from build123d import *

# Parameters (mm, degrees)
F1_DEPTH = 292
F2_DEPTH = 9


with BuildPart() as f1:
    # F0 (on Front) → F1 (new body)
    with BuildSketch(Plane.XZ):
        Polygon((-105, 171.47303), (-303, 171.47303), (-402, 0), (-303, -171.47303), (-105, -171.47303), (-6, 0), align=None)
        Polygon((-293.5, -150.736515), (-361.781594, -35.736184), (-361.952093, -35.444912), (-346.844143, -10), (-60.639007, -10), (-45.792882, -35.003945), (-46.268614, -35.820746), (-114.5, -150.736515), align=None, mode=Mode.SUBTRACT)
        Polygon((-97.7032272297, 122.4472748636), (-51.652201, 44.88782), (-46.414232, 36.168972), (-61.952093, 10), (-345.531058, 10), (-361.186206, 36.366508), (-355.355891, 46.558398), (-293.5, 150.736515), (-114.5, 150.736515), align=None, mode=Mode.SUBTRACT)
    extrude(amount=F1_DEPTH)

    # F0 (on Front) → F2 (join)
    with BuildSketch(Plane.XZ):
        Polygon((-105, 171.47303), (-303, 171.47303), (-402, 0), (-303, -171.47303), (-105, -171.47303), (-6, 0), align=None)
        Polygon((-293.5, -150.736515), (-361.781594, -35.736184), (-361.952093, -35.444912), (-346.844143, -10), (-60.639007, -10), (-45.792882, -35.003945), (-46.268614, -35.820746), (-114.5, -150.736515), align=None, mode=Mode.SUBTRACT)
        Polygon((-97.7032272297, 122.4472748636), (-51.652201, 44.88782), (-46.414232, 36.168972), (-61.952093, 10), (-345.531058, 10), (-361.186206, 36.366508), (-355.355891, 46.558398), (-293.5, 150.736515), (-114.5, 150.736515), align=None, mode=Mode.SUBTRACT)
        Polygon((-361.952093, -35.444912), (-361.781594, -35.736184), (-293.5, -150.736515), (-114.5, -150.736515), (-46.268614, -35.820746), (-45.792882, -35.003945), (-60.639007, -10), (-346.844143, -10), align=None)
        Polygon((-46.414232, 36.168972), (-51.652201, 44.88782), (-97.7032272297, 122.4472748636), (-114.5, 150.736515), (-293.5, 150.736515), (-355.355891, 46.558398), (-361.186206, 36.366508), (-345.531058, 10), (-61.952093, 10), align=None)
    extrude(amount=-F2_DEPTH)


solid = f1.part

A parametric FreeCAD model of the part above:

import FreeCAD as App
import Part
import Sketcher
from FreeCAD import Vector
Q = App.Units.Quantity

doc = App.newDocument("Part")
body = doc.addObject("PartDesign::Body", "Body")

# Sketch on XZ plane
sketch1 = body.newObject("Sketcher::SketchObject", "Sketch")
sketch1.AttachmentSupport = (doc.getObject("XZ_Plane"), [""])
sketch1.MapMode = "FlatFace"
sketch1.addGeometry([
    Part.LineSegment(Vector(-105, 171.47303, 0), Vector(-303, 171.47303, 0)),  # 0
    Part.LineSegment(Vector(-303, 171.47303, 0), Vector(-402, 0, 0)),  # 1
    Part.LineSegment(Vector(-402, 0, 0), Vector(-303, -171.47303, 0)),  # 2
    Part.LineSegment(Vector(-303, -171.47303, 0), Vector(-105, -171.47303, 0)),  # 3
    Part.LineSegment(Vector(-105, -171.47303, 0), Vector(-6, 0, 0)),  # 4
    Part.LineSegment(Vector(-6, 0, 0), Vector(-105, 171.47303, 0)),  # 5
    Part.LineSegment(Vector(-114.5, -150.736515, 0), Vector(-293.5, -150.736515, 0)),  # 6
    Part.LineSegment(Vector(-293.5, -150.736515, 0), Vector(-361.781594, -35.736184, 0)),  # 7
    Part.LineSegment(Vector(-361.781594, -35.736184, 0), Vector(-361.952093, -35.444912, 0)),  # 8
    Part.LineSegment(Vector(-361.952093, -35.444912, 0), Vector(-346.844143, -10, 0)),  # 9
    Part.LineSegment(Vector(-346.844143, -10, 0), Vector(-60.639007, -10, 0)),  # 10
    Part.LineSegment(Vector(-60.639007, -10, 0), Vector(-45.792882, -35.003945, 0)),  # 11
    Part.LineSegment(Vector(-45.792882, -35.003945, 0), Vector(-46.268614, -35.820746, 0)),  # 12
    Part.LineSegment(Vector(-46.268614, -35.820746, 0), Vector(-114.5, -150.736515, 0)),  # 13
    Part.LineSegment(Vector(-114.5, 150.736515, 0), Vector(-97.703227, 122.447275, 0)),  # 14
    Part.LineSegment(Vector(-97.703227, 122.447275, 0), Vector(-51.652201, 44.88782, 0)),  # 15
    Part.LineSegment(Vector(-51.652201, 44.88782, 0), Vector(-46.414232, 36.168972, 0)),  # 16
    Part.LineSegment(Vector(-46.414232, 36.168972, 0), Vector(-61.952093, 10, 0)),  # 17
    Part.LineSegment(Vector(-61.952093, 10, 0), Vector(-345.531058, 10, 0)),  # 18
    Part.LineSegment(Vector(-345.531058, 10, 0), Vector(-361.186206, 36.366508, 0)),  # 19
    Part.LineSegment(Vector(-361.186206, 36.366508, 0), Vector(-355.355891, 46.558398, 0)),  # 20
    Part.LineSegment(Vector(-355.355891, 46.558398, 0), Vector(-293.5, 150.736515, 0)),  # 21
    Part.LineSegment(Vector(-293.5, 150.736515, 0), Vector(-114.5, 150.736515, 0)),  # 22
], False)
sketch1.addConstraint([
    Sketcher.Constraint("Coincident", 0, 2, 1, 1),
    Sketcher.Constraint("Coincident", 1, 2, 2, 1),
    Sketcher.Constraint("Coincident", 2, 2, 3, 1),
    Sketcher.Constraint("Coincident", 3, 2, 4, 1),
    Sketcher.Constraint("Coincident", 4, 2, 5, 1),
    Sketcher.Constraint("Coincident", 5, 2, 0, 1),
    Sketcher.Constraint("Coincident", 6, 2, 7, 1),
    Sketcher.Constraint("Coincident", 7, 2, 8, 1),
    Sketcher.Constraint("Coincident", 8, 2, 9, 1),
    Sketcher.Constraint("Coincident", 9, 2, 10, 1),
    Sketcher.Constraint("Coincident", 10, 2, 11, 1),
    Sketcher.Constraint("Coincident", 11, 2, 12, 1),
    Sketcher.Constraint("Coincident", 12, 2, 13, 1),
    Sketcher.Constraint("Coincident", 13, 2, 6, 1),
    Sketcher.Constraint("Coincident", 14, 2, 15, 1),
    Sketcher.Constraint("Coincident", 15, 2, 16, 1),
    Sketcher.Constraint("Coincident", 16, 2, 17, 1),
    Sketcher.Constraint("Coincident", 17, 2, 18, 1),
    Sketcher.Constraint("Coincident", 18, 2, 19, 1),
    Sketcher.Constraint("Coincident", 19, 2, 20, 1),
    Sketcher.Constraint("Coincident", 20, 2, 21, 1),
    Sketcher.Constraint("Coincident", 21, 2, 22, 1),
    Sketcher.Constraint("Coincident", 22, 2, 14, 1),
    Sketcher.Constraint("Horizontal", 0),
    Sketcher.Constraint("Horizontal", 3),
    Sketcher.Constraint("Horizontal", 6),
    Sketcher.Constraint("Horizontal", 10),
    Sketcher.Constraint("Horizontal", 18),
    Sketcher.Constraint("Horizontal", 22),
    Sketcher.Constraint("Symmetric", 0, 2, 2, 2, -1),
    Sketcher.Constraint("Symmetric", 6, 2, 21, 2, -1),
    Sketcher.Constraint("PointOnObject", 1, 2, -1),
    Sketcher.Constraint("PointOnObject", 4, 2, -1),
    Sketcher.Constraint("Parallel", 1, 4),
    Sketcher.Constraint("Parallel", 2, 5),
    Sketcher.Constraint("Parallel", 7, 11),
    Sketcher.Constraint("Parallel", 9, 13),
    Sketcher.Constraint("Parallel", 11, 14),
    Sketcher.Constraint("Parallel", 14, 15),
    Sketcher.Constraint("Parallel", 13, 17),
    Sketcher.Constraint("Parallel", 15, 19),
    Sketcher.Constraint("Parallel", 17, 21),
    Sketcher.Constraint("Vertical", 13, 2, 22, 2),
    Sketcher.Constraint("DistanceX", 0, 2, 0, 1, 198.0),
    Sketcher.Constraint("DistanceX", 6, 2, 6, 1, 179.0),
    Sketcher.Constraint("Angle", 1, Q("-120 deg")),
    Sketcher.Constraint("Distance", 1, 198.0),
    Sketcher.Constraint("DistanceX", 0, 2, -1, 1, 303.0),
    Sketcher.Constraint("DistanceY", 9, 2, -1, 1, 10.0),
    Sketcher.Constraint("DistanceY", -1, 1, 17, 2, 10.0),
    Sketcher.Constraint("DistanceX", 6, 2, -1, 1, 293.5),
    Sketcher.Constraint("Distance", 15, 90.200699),
    Sketcher.Constraint("DistanceX", 15, 2, -1, 1, 51.652201),
    Sketcher.Constraint("DistanceX", 8, 2, 7, 2, 0.170499),
    Sketcher.Constraint("DistanceY", 12, 2, 11, 2, 0.816801),
    Sketcher.Constraint("Distance", 7, 133.74398),
    Sketcher.Constraint("Distance", 14, 32.900041),
    Sketcher.Constraint("DistanceX", 10, 1, 10, 2, 286.205136),
    Sketcher.Constraint("DistanceX", 18, 2, 18, 1, 283.578965),
    Sketcher.Constraint("DistanceY", -1, 1, 15, 2, 44.88782),
    Sketcher.Constraint("DistanceX", 16, 2, -1, 1, 46.414232),
    Sketcher.Constraint("DistanceY", -1, 1, 16, 2, 36.168972),
    Sketcher.Constraint("DistanceY", -1, 1, 19, 2, 36.366508),
    Sketcher.Constraint("DistanceX", 20, 2, -1, 1, 355.355891),
    Sketcher.Constraint("DistanceY", 7, 2, 8, 2, 0.291272),
    Sketcher.Constraint("DistanceX", 8, 2, 9, 2, 15.10795),
    Sketcher.Constraint("DistanceX", 6, 2, 11, 2, 247.707118),
])
pad1 = body.newObject("PartDesign::Pad", "Pad")
pad1.Profile = sketch1
pad1.Length = 292

# Sketch on XZ plane
sketch2 = body.newObject("Sketcher::SketchObject", "Sketch001")
sketch2.AttachmentSupport = (doc.getObject("XZ_Plane"), [""])
sketch2.MapMode = "FlatFace"
sketch2.addGeometry([
    Part.LineSegment(Vector(-105, 171.47303, 0), Vector(-303, 171.47303, 0)),  # 0
    Part.LineSegment(Vector(-303, 171.47303, 0), Vector(-402, 0, 0)),  # 1
    Part.LineSegment(Vector(-402, 0, 0), Vector(-303, -171.47303, 0)),  # 2
    Part.LineSegment(Vector(-303, -171.47303, 0), Vector(-105, -171.47303, 0)),  # 3
    Part.LineSegment(Vector(-105, -171.47303, 0), Vector(-6, 0, 0)),  # 4
    Part.LineSegment(Vector(-6, 0, 0), Vector(-105, 171.47303, 0)),  # 5
], False)
sketch2.addConstraint([
    Sketcher.Constraint("Coincident", 0, 2, 1, 1),
    Sketcher.Constraint("Coincident", 1, 2, 2, 1),
    Sketcher.Constraint("Coincident", 2, 2, 3, 1),
    Sketcher.Constraint("Coincident", 3, 2, 4, 1),
    Sketcher.Constraint("Coincident", 4, 2, 5, 1),
    Sketcher.Constraint("Coincident", 5, 2, 0, 1),
    Sketcher.Constraint("Horizontal", 0),
    Sketcher.Constraint("Horizontal", 3),
    Sketcher.Constraint("Symmetric", 0, 2, 2, 2, -1),
    Sketcher.Constraint("PointOnObject", 1, 2, -1),
    Sketcher.Constraint("PointOnObject", 4, 2, -1),
    Sketcher.Constraint("Parallel", 1, 4),
    Sketcher.Constraint("Parallel", 2, 5),
    Sketcher.Constraint("DistanceX", 0, 2, 0, 1, 198.0),
    Sketcher.Constraint("Angle", 1, Q("-120 deg")),
    Sketcher.Constraint("Distance", 1, 198.0),
    Sketcher.Constraint("DistanceX", 0, 2, -1, 1, 303.0),
])
pad2 = body.newObject("PartDesign::Pad", "Pad001")
pad2.Profile = sketch2
pad2.Length = 9
pad2.Reversed = True

doc.recompute()
